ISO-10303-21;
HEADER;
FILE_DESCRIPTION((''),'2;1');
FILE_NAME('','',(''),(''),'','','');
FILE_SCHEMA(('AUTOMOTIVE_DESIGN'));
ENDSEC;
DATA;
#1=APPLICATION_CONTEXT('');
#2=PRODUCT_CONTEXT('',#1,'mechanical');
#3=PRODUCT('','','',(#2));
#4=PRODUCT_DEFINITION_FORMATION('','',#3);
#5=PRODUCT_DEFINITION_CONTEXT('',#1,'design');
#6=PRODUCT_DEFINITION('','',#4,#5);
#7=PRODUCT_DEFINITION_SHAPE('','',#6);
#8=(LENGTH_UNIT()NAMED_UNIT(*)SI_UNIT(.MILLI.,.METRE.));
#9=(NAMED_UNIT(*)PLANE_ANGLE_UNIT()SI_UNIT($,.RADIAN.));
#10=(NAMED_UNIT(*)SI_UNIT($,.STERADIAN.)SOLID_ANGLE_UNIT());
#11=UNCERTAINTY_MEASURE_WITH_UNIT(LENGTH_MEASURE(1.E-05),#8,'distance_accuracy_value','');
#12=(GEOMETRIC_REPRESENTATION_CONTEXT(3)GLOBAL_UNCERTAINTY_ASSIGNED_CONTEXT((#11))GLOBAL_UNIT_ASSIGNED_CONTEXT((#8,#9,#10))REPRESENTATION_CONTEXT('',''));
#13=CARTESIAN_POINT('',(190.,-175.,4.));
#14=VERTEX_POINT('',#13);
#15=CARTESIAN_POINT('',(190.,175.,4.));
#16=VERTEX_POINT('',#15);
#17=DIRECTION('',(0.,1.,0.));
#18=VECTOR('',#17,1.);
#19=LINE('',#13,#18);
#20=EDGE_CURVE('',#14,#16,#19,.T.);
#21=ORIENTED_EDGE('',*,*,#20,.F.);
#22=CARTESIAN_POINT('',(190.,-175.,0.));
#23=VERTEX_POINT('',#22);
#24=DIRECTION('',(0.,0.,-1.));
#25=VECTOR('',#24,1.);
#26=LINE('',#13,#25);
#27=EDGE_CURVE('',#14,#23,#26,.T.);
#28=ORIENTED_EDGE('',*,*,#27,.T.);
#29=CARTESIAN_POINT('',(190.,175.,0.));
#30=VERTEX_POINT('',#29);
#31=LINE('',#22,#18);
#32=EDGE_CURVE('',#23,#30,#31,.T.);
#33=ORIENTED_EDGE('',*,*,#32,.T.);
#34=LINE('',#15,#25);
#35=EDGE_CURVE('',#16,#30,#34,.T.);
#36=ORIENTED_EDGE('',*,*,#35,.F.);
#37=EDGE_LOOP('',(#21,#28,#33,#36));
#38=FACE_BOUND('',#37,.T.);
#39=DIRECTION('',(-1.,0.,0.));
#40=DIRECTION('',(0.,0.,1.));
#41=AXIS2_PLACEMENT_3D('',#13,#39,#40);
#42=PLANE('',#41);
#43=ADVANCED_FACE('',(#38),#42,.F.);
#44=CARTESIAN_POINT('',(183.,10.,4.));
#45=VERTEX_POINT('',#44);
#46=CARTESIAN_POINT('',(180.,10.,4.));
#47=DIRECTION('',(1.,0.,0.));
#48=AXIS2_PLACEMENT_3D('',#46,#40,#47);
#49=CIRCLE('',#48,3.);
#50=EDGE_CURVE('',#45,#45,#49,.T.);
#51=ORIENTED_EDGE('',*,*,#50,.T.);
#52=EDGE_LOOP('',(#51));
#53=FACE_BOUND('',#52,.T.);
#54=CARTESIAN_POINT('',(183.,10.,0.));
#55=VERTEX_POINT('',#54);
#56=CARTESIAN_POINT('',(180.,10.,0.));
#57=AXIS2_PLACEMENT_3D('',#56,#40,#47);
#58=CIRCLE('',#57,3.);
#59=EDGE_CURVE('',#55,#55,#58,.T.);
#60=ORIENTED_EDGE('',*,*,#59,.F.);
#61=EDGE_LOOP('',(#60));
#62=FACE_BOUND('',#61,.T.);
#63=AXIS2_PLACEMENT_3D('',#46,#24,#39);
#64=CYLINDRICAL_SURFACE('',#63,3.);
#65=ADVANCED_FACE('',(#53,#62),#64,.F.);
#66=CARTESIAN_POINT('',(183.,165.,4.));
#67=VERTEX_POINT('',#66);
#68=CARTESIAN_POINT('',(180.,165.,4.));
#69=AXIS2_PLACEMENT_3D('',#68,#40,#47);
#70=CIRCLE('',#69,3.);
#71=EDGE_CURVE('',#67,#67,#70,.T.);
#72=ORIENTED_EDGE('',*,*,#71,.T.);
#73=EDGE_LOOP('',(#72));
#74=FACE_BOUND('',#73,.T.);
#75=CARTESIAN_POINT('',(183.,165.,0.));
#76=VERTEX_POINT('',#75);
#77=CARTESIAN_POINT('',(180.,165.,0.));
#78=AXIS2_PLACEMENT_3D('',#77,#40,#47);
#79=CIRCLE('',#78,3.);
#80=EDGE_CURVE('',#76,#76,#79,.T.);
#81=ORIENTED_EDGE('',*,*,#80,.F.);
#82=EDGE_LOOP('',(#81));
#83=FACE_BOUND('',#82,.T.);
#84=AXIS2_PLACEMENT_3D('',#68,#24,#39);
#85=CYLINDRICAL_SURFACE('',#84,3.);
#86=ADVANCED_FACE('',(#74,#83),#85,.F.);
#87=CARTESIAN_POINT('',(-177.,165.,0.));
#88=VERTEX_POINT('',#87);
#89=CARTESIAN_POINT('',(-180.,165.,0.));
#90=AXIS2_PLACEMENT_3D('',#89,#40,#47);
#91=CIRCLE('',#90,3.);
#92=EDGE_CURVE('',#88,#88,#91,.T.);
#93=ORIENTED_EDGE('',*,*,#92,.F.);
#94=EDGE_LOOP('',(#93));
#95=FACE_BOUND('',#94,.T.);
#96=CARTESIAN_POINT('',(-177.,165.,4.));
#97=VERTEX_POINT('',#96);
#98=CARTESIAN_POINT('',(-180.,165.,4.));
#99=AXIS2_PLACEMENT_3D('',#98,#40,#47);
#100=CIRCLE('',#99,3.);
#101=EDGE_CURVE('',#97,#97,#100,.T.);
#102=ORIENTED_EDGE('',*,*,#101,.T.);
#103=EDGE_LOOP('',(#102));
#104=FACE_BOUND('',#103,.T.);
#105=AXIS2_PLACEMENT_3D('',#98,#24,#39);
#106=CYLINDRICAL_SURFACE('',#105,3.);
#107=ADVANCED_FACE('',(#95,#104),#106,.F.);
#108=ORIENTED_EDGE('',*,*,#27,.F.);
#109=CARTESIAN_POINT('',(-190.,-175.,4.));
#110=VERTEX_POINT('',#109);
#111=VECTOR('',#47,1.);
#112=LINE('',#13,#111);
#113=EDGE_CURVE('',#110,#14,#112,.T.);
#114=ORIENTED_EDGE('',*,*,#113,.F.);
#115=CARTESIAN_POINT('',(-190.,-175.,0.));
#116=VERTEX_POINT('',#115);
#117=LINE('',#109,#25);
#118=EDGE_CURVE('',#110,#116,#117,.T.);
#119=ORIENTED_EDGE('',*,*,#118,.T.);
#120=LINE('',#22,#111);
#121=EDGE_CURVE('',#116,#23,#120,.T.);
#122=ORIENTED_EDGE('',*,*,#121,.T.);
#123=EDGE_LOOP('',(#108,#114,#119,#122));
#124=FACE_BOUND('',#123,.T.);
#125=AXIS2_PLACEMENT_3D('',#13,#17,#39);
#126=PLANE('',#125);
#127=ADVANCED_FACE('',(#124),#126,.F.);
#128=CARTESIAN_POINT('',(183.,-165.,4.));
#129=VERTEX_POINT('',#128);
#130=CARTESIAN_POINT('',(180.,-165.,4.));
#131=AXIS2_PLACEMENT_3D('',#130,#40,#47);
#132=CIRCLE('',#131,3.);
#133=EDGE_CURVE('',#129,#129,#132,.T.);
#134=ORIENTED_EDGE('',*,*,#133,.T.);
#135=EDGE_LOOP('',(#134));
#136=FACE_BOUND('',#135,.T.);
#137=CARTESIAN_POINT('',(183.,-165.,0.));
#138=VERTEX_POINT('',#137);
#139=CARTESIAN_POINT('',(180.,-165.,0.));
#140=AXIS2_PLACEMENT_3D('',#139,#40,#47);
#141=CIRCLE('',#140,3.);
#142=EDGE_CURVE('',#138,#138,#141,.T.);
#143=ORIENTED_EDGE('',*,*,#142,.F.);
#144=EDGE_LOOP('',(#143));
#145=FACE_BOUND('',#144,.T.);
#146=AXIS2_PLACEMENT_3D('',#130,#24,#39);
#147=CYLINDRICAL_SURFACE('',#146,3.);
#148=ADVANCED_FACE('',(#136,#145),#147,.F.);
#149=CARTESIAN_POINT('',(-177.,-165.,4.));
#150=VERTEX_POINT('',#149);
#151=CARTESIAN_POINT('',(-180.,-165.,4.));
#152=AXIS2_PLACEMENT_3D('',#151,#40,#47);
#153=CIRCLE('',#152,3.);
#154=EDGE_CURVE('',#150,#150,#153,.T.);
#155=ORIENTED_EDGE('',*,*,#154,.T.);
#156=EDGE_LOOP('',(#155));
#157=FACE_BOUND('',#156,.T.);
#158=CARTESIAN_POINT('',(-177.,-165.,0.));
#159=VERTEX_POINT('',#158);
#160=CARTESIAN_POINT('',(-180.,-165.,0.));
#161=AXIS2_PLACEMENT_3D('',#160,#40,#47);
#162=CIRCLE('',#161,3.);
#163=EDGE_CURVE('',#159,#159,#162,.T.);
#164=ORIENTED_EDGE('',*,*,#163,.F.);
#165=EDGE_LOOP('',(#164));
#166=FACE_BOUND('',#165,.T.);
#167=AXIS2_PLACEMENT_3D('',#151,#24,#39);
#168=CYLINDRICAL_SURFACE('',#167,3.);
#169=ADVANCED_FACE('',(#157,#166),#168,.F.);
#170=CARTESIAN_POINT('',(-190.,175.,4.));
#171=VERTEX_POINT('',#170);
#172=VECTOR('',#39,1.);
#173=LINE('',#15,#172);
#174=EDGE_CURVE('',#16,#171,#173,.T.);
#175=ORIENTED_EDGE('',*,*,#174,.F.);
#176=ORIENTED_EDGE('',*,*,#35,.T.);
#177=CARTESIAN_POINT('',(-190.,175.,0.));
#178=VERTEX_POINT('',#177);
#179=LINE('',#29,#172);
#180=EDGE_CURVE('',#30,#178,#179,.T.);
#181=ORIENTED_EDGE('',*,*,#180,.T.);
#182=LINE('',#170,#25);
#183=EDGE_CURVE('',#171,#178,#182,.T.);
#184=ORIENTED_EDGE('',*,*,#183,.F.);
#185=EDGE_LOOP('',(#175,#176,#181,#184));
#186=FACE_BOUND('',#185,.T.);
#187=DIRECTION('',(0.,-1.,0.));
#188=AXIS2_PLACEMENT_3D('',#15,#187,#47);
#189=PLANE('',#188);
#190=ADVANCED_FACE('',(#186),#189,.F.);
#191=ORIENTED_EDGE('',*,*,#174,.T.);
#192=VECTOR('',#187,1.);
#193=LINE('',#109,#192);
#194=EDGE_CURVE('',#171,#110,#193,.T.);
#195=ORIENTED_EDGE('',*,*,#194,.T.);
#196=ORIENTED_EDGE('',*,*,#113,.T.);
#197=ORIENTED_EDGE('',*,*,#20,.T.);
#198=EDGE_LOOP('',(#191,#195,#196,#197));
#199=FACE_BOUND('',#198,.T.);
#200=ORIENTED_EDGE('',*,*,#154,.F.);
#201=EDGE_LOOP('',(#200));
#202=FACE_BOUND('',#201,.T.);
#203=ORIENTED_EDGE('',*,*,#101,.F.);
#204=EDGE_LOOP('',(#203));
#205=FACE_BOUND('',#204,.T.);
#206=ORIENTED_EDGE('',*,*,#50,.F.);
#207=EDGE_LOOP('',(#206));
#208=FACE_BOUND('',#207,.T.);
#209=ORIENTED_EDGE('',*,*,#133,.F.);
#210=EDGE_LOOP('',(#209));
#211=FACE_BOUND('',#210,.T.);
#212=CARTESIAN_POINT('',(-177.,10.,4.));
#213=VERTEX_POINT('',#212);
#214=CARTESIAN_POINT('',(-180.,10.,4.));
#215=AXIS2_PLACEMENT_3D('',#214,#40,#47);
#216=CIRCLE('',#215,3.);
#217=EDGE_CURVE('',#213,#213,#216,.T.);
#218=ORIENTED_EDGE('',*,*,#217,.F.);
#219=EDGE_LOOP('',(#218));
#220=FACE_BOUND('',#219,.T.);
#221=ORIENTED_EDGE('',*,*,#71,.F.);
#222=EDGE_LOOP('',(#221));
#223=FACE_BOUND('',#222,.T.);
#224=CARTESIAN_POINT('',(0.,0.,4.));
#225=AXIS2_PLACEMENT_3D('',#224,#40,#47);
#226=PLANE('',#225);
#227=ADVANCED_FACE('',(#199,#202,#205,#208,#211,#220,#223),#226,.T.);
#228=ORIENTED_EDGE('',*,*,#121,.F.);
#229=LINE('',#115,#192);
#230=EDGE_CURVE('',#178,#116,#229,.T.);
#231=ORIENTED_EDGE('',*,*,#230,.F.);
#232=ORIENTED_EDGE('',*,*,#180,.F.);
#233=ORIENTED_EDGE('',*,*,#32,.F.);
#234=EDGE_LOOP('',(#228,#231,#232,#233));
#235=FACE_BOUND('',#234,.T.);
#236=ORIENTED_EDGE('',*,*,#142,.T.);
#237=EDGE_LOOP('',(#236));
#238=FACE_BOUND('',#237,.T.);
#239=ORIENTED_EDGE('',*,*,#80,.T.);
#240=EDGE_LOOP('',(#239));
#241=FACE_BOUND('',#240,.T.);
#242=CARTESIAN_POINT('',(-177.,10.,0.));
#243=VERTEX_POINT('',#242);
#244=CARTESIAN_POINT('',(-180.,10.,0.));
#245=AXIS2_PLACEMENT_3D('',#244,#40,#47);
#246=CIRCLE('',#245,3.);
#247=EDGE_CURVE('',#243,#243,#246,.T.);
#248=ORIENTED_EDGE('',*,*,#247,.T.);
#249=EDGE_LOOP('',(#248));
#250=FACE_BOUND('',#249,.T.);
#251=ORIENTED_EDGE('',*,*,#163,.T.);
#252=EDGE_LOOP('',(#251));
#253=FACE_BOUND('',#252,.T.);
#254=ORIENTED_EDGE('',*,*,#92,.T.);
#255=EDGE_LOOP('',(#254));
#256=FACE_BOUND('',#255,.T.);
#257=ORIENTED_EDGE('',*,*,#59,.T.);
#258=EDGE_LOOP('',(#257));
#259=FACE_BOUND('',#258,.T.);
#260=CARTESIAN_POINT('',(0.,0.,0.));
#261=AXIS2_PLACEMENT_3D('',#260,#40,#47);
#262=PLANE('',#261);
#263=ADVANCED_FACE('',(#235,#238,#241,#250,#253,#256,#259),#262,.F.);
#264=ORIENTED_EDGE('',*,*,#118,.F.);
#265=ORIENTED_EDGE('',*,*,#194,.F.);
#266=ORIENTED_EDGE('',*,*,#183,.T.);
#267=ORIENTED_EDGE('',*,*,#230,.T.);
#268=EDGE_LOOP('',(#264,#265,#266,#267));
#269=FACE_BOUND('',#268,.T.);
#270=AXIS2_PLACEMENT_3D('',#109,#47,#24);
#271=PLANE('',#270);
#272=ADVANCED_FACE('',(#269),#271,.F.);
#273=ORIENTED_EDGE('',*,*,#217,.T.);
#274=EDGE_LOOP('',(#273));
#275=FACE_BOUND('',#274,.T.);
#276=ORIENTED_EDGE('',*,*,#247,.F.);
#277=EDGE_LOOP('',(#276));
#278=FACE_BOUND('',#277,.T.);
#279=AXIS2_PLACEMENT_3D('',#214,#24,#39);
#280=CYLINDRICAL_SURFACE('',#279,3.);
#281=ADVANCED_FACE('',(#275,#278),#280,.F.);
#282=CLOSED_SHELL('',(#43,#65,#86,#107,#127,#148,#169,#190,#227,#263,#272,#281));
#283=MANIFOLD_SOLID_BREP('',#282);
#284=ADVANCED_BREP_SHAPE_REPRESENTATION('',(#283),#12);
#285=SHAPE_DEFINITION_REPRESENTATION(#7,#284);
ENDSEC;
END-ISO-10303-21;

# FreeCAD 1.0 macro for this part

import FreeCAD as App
import Part
import Sketcher
from FreeCAD import Vector

doc = App.newDocument("Part")
body = doc.addObject("PartDesign::Body", "Body")

# Sketch on XY plane
sketch1 = body.newObject("Sketcher::SketchObject", "Sketch")
sketch1.AttachmentSupport = (doc.getObject("XY_Plane"), [""])
sketch1.MapMode = "FlatFace"
sketch1.addGeometry(Part.LineSegment(Vector(-190, 175, 0), Vector(-190, -175, 0)), False)
sketch1.addGeometry(Part.LineSegment(Vector(-190, -175, 0), Vector(190, -175, 0)), False)
sketch1.addGeometry(Part.LineSegment(Vector(190, -175, 0), Vector(190, 175, 0)), False)
sketch1.addGeometry(Part.LineSegment(Vector(190, 175, 0), Vector(-190, 175, 0)), False)
sketch1.addGeometry(Part.Circle(Vector(-180, -165, 0), Vector(0, 0, 1), 3), False)
sketch1.addGeometry(Part.Circle(Vector(180, -165, 0), Vector(0, 0, 1), 3), False)
sketch1.addGeometry(Part.Circle(Vector(-180, 10, 0), Vector(0, 0, 1), 3), False)
sketch1.addGeometry(Part.Circle(Vector(-180, 165, 0), Vector(0, 0, 1), 3), False)
sketch1.addGeometry(Part.Circle(Vector(180, 10, 0), Vector(0, 0, 1), 3), False)
sketch1.addGeometry(Part.Circle(Vector(180, 165, 0), Vector(0, 0, 1), 3), False)
sketch1.addConstraint(Sketcher.Constraint("Coincident", 0, 2, 1, 1))
sketch1.addConstraint(Sketcher.Constraint("Coincident", 1, 2, 2, 1))
sketch1.addConstraint(Sketcher.Constraint("Coincident", 2, 2, 3, 1))
sketch1.addConstraint(Sketcher.Constraint("Coincident", 3, 2, 0, 1))
sketch1.addConstraint(Sketcher.Constraint("Vertical", 0))
sketch1.addConstraint(Sketcher.Constraint("Horizontal", 1))
sketch1.addConstraint(Sketcher.Constraint("Vertical", 2))
sketch1.addConstraint(Sketcher.Constraint("Horizontal", 3))
sketch1.addConstraint(Sketcher.Constraint("Equal", 4, 5))
sketch1.addConstraint(Sketcher.Constraint("Equal", 5, 6))
sketch1.addConstraint(Sketcher.Constraint("Equal", 6, 7))
sketch1.addConstraint(Sketcher.Constraint("Equal", 7, 8))
sketch1.addConstraint(Sketcher.Constraint("Equal", 8, 9))
sketch1.addConstraint(Sketcher.Constraint("Symmetric", 5, 3, 7, 3, -1, 1))
sketch1.addConstraint(Sketcher.Constraint("Symmetric", 4, 3, 9, 3, -1, 1))
sketch1.addConstraint(Sketcher.Constraint("Symmetric", 0, 2, 2, 2, -1, 1))
sketch1.addConstraint(Sketcher.Constraint("Symmetric", 4, 3, 5, 3, -2))
sketch1.addConstraint(Sketcher.Constraint("Symmetric", 6, 3, 8, 3, -2))
sketch1.addConstraint(Sketcher.Constraint("Vertical", 4, 3, 6, 3))
sketch1.addConstraint(Sketcher.Constraint("Diameter", 4, 6.0))
sketch1.addConstraint(Sketcher.Constraint("DistanceX", 1, 1, 1, 2, 380.0))
sketch1.addConstraint(Sketcher.Constraint("DistanceY", 0, 2, 0, 1, 350.0))
sketch1.addConstraint(Sketcher.Constraint("DistanceX", 4, 3, -1, 1, 180.0))
sketch1.addConstraint(Sketcher.Constraint("DistanceY", 4, 3, -1, 1, 165.0))
sketch1.addConstraint(Sketcher.Constraint("DistanceY", -1, 1, 6, 3, 10.0))
pad1 = body.newObject("PartDesign::Pad", "Pad")
pad1.Profile = sketch1
pad1.Length = 4

doc.recompute()
